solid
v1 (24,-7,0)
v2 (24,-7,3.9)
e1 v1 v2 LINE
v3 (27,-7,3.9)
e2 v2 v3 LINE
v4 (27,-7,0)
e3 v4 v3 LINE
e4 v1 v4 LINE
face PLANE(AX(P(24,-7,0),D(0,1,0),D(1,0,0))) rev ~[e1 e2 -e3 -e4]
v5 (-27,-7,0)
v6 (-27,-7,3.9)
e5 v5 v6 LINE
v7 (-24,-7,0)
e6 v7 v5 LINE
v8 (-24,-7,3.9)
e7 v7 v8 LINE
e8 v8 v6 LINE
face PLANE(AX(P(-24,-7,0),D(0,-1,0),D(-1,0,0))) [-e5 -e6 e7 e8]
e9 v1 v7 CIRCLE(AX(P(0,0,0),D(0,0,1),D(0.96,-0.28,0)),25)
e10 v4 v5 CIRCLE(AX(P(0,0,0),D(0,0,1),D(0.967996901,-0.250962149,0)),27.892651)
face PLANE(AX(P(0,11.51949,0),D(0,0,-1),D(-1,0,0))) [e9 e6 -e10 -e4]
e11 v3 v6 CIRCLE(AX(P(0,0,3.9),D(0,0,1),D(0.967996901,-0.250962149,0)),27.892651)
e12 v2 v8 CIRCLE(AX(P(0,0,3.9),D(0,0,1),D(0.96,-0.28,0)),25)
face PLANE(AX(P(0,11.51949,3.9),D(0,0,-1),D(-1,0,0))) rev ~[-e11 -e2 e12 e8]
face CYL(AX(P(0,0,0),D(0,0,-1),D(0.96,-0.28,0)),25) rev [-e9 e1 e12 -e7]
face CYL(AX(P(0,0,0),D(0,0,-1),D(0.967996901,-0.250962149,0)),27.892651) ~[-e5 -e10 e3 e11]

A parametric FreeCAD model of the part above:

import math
import FreeCAD as App
import Part
import Sketcher
from FreeCAD import Vector
Q = App.Units.Quantity

doc = App.newDocument("Part")
body = doc.addObject("PartDesign::Body", "Body")

# Sketch on XY plane
sketch1 = body.newObject("Sketcher::SketchObject", "Sketch")
sketch1.AttachmentSupport = (doc.getObject("XY_Plane"), [""])
sketch1.MapMode = "FlatFace"
sketch1.addGeometry([
    Part.ArcOfCircle(Part.Circle(Vector(0, 0, 0), Vector(0, 0, 1), 25), math.radians(-16.260205), math.radians(196.260205)),
    Part.LineSegment(Vector(24, -7, 0), Vector(27, -7, 0)),
    Part.ArcOfCircle(Part.Circle(Vector(0, 0, 0), Vector(0, 0, 1), 27.892651), math.radians(-14.534455), math.radians(194.534455)),
    Part.LineSegment(Vector(-27, -7, 0), Vector(-24, -7, 0)),
], False)
sketch1.addConstraint([
    Sketcher.Constraint("Coincident", 0, 1, 1, 1),
    Sketcher.Constraint("Coincident", 1, 2, 2, 1),
    Sketcher.Constraint("Coincident", 2, 2, 3, 1),
    Sketcher.Constraint("Coincident", 3, 2, 0, 2),
    Sketcher.Constraint("Horizontal", 1),
    Sketcher.Constraint("Horizontal", 3),
    Sketcher.Constraint("Coincident", 0, 3, -1, 1),
    Sketcher.Constraint("Coincident", 2, 3, -1, 1),
    Sketcher.Constraint("Horizontal", 1, 2, 2, 2),
    Sketcher.Constraint("Radius", 0, Q("25 mm")),
    Sketcher.Constraint("DistanceX", 1, 1, 1, 2, Q("3 mm")),
    Sketcher.Constraint("DistanceX", -1, 1, 0, 1, Q("24 mm")),
])
pad1 = body.newObject("PartDesign::Pad", "Pad")
pad1.Profile = sketch1
pad1.Length = 3.9

doc.recompute()
